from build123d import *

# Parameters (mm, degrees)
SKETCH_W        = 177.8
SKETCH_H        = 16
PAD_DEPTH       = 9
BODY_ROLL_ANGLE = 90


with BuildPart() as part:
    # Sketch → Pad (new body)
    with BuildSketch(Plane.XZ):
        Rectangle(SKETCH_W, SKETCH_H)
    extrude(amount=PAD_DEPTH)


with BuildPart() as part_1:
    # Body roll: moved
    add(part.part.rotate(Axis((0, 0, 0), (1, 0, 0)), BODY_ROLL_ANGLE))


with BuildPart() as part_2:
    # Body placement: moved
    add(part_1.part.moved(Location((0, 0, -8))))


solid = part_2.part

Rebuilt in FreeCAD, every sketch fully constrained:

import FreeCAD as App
import Part
import Sketcher

doc = App.newDocument("Part")
body = doc.addObject("PartDesign::Body", "Body")

sketch1 = body.newObject("Sketcher::SketchObject", "Sketch")
sketch1.AttachmentSupport = (doc.getObject("XZ_Plane"), [""])
sketch1.MapMode = "FlatFace"
sketch1.addGeometry(Part.LineSegment(App.Vector(-89, 8, 0), App.Vector(-89, -8, 0)), False)
sketch1.addGeometry(Part.LineSegment(App.Vector(-89, -8, 0), App.Vector(89, -8, 0)), False)
sketch1.addGeometry(Part.LineSegment(App.Vector(89, -8, 0), App.Vector(89, 8, 0)), False)
sketch1.addGeometry(Part.LineSegment(App.Vector(89, 8, 0), App.Vector(-89, 8, 0)), False)
sketch1.addConstraint(Sketcher.Constraint("Coincident", 0, 2, 1, 1))
sketch1.addConstraint(Sketcher.Constraint("Coincident", 1, 2, 2, 1))
sketch1.addConstraint(Sketcher.Constraint("Coincident", 2, 2, 3, 1))
sketch1.addConstraint(Sketcher.Constraint("Coincident", 3, 2, 0, 1))
sketch1.addConstraint(Sketcher.Constraint("Vertical", 0))
sketch1.addConstraint(Sketcher.Constraint("Horizontal", 1))
sketch1.addConstraint(Sketcher.Constraint("Vertical", 2))
sketch1.addConstraint(Sketcher.Constraint("Horizontal", 3))
sketch1.addConstraint(Sketcher.Constraint("Symmetric", 0, 2, 2, 2, -1, 1))
sketch1.addConstraint(Sketcher.Constraint("DistanceY", 0, 2, 0, 1, 16.0))
sketch1.addConstraint(Sketcher.Constraint("DistanceX", 1, 1, 1, 2, 177.8))
pad1 = body.newObject("PartDesign::Pad", "Pad")
pad1.Profile = sketch1
pad1.Length = 9
body2 = doc.addObject("PartDesign::Body", "Body001")
doc.recompute()

body.Placement = App.Placement(App.Vector(0, 0, 0), App.Rotation(App.Vector(1, 0, 0), 90))
boolean = body2.newObject("PartDesign::Boolean", "Boolean")
boolean.Type = "Fuse"
boolean.addObjects([body])
body3 = doc.addObject("PartDesign::Body", "Body002")
doc.recompute()

body2.Placement = App.Placement(App.Vector(0, 0, -8), App.Rotation(App.Vector(0, 0, 1), 0))
boolean2 = body3.newObject("PartDesign::Boolean", "Boolean001")
boolean2.Type = "Fuse"
boolean2.addObjects([body2])

doc.recompute()
